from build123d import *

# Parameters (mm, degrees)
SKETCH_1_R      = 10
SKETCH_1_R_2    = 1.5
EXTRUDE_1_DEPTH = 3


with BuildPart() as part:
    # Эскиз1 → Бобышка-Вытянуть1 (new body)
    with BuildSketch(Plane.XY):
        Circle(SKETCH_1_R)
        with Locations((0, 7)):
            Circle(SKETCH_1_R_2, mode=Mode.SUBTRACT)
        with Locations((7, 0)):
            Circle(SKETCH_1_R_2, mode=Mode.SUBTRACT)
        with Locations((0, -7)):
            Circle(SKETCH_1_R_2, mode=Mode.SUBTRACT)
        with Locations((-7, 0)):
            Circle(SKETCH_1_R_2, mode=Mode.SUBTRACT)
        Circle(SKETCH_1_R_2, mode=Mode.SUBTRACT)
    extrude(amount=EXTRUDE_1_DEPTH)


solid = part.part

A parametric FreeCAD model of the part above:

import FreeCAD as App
import Part
import Sketcher
Q = App.Units.Quantity

doc = App.newDocument("Part")
body = doc.addObject("PartDesign::Body", "Body")

# Sketch on XY plane
sketch1 = doc.addObject("Sketcher::SketchObject", "Sketch")
body.addObject(sketch1)
sketch1.AttachmentSupport = (doc.XY_Plane, [""])
sketch1.MapMode = "FlatFace"
sketch1.addGeometry([
    Part.Circle(App.Vector(0, 0, 0), App.Vector(0, 0, 1), 10),  # 0
    Part.Circle(App.Vector(0, -7, 0), App.Vector(0, 0, 1), 1.5),  # 1
    Part.Circle(App.Vector(-7, 0, 0), App.Vector(0, 0, 1), 1.5),  # 2
    Part.Circle(App.Vector(0, 0, 0), App.Vector(0, 0, 1), 1.5),  # 3
    Part.Circle(App.Vector(7, 0, 0), App.Vector(0, 0, 1), 1.5),  # 4
    Part.Circle(App.Vector(0, 7, 0), App.Vector(0, 0, 1), 1.5),  # 5
], False)
sketch1.addConstraint([
    Sketcher.Constraint("Coincident", 0, 3, -1, 1),
    Sketcher.Constraint("Coincident", 3, 3, -1, 1),
    Sketcher.Constraint("Equal", 1, 2),
    Sketcher.Constraint("Equal", 2, 3),
    Sketcher.Constraint("Equal", 3, 4),
    Sketcher.Constraint("Equal", 4, 5),
    Sketcher.Constraint("Symmetric", 2, 3, 4, 3, -1, 1),
    Sketcher.Constraint("Symmetric", 1, 3, 5, 3, -1, 1),
    Sketcher.Constraint("PointOnObject", 1, 3, -2),
    Sketcher.Constraint("PointOnObject", 2, 3, -1),
    Sketcher.Constraint("Diameter", 0, Q("20 mm")),
    Sketcher.Constraint("Diameter", 1, Q("3 mm")),
    Sketcher.Constraint("DistanceY", 1, 3, -1, 1, Q("7 mm")),
    Sketcher.Constraint("DistanceX", 2, 3, -1, 1, Q("7 mm")),
])
pad1 = doc.addObject("PartDesign::Pad", "Pad")
body.addObject(pad1)
pad1.Profile = sketch1
pad1.Length = 3

doc.recompute()
